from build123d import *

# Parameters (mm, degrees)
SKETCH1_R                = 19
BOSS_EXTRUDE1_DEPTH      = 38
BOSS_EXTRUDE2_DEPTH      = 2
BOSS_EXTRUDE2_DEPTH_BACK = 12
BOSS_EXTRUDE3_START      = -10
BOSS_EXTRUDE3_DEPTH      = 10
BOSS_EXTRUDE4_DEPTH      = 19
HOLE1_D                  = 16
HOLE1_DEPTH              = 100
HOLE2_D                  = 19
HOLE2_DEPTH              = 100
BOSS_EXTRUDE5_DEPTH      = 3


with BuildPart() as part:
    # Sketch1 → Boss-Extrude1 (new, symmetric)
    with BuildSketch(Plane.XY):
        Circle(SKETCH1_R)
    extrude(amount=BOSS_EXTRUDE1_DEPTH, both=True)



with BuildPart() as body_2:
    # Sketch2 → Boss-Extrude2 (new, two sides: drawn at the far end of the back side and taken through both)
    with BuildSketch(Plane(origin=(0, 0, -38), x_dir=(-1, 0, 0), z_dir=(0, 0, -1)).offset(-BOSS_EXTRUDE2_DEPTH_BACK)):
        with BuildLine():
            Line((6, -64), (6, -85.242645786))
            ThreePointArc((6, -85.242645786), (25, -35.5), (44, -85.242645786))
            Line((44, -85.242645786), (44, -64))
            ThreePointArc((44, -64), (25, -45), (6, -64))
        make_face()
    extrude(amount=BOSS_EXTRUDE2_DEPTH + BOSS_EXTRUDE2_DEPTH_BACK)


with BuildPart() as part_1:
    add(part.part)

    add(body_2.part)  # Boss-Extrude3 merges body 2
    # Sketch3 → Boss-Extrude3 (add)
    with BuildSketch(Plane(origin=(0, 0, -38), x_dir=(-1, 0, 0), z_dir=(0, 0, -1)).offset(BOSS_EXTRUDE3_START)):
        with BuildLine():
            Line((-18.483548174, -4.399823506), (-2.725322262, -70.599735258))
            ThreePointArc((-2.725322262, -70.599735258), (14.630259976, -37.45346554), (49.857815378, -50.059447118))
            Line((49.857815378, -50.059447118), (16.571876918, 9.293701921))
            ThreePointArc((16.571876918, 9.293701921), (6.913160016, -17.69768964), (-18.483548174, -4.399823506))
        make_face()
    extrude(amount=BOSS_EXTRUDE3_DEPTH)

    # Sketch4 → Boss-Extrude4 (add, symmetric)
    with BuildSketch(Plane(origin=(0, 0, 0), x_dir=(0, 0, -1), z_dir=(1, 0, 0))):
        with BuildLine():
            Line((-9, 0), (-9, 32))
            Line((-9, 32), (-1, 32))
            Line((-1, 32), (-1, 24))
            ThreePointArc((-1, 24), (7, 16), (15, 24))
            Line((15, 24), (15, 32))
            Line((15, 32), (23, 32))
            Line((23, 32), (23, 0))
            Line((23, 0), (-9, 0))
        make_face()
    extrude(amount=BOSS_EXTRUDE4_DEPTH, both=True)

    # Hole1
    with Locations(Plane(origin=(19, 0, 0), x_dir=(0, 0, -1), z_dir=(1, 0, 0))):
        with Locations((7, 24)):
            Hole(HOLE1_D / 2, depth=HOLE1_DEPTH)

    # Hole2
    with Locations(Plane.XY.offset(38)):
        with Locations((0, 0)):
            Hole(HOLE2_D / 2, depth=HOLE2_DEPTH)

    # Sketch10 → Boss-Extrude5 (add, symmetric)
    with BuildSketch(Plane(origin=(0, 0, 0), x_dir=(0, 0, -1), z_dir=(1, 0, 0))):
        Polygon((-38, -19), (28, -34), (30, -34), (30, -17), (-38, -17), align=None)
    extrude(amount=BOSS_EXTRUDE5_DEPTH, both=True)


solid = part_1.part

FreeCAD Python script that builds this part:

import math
import FreeCAD as App
import Part
import Sketcher
from FreeCAD import Vector
Q = App.Units.Quantity


def add_polygon(sketch, points):
    """Adds a closed chain of lines whose ends are joined by coincident constraints."""
    first, n = sketch.GeometryCount, len(points)
    for a, b in zip(points, points[1:] + points[:1]):
        sketch.addGeometry(Part.LineSegment(App.Vector(*a, 0), App.Vector(*b, 0)), False)
    for i in range(n):
        sketch.addConstraint(Sketcher.Constraint("Coincident", first + i, 2, first + (i + 1) % n, 1))

doc = App.newDocument("Part")
params = doc.addObject("Spreadsheet::Sheet", "Params")
for row, (alias, value) in enumerate([
    ("sketch1_diameter", "38 mm"),
    ("pad1_length", "76 mm"),
    ("sketch2_radius", "19 mm"),
    ("sketch2_radius2", "28.5 mm"),
    ("pad2_length", "2 mm"),
    ("pad2_length2", "12 mm"),
    ("sketch3_radius", "19 mm"),
    ("sketch3_radius2", "28.5 mm"),
    ("pad3_length", "10 mm"),
    ("sketch4_radius", "8 mm"),
    ("sketch4_width", "32 mm"),
    ("pad4_length", "38 mm"),
    ("sketch5_diameter", "16 mm"),
    ("hole_diameter", "16 mm"),
    ("hole_depth", "100 mm"),
    ("sketch6_diameter", "19 mm"),
    ("hole2_diameter", "19 mm"),
    ("hole2_depth", "100 mm"),
    ("sketch7_width", "17 mm"),
    ("sketch7_width2", "2 mm"),
    ("sketch7_height", "68 mm"),
    ("pad5_length", "6 mm"),
], start=1):
    params.set(f"A{row}", alias)
    params.set(f"B{row}", "=" + value)
    params.setAlias(f"B{row}", alias)

body = doc.addObject("PartDesign::Body", "Body")

# Sketch on XY plane
sketch1 = body.newObject("Sketcher::SketchObject", "Sketch")
sketch1.AttachmentSupport = (doc.getObject("XY_Plane"), [""])
sketch1.MapMode = "FlatFace"
sketch1.addGeometry(Part.Circle(Vector(0, 0, 0), Vector(0, 0, 1), 19), False)
sketch1.addConstraint(Sketcher.Constraint("Coincident", 0, 3, -1, 1))
sketch1.addConstraint(Sketcher.Constraint("Diameter", 0, Q("38 mm")))
sketch1.setExpression("Constraints[1]", "Params.sketch1_diameter")
pad1 = body.newObject("PartDesign::Pad", "Pad")
pad1.Profile = sketch1
pad1.setExpression("Length", "Params.pad1_length")
pad1.Midplane = True
body2 = doc.addObject("PartDesign::Body", "Body001")

# Sketch on XY plane
sketch2 = body2.newObject("Sketcher::SketchObject", "Sketch001")
sketch2.AttachmentSupport = (doc.getObject("XY_Plane001"), [""])
sketch2.MapMode = "FlatFace"
sketch2.AttachmentOffset = App.Placement(Vector(0, 0, -38), App.Rotation())
sketch2.addGeometry(Part.LineSegment(Vector(-6, -85, 0), Vector(-6, -64, 0)), False)
sketch2.addGeometry(Part.ArcOfCircle(Part.Circle(Vector(-25, -64, 0), Vector(0, 0, 1), 19), math.radians(0), math.radians(180)), False)
sketch2.addGeometry(Part.LineSegment(Vector(-44, -64, 0), Vector(-44, -85, 0)), False)
sketch2.addGeometry(Part.ArcOfCircle(Part.Circle(Vector(-25, -64, 0), Vector(0, 0, 1), 28), math.radians(-48), math.radians(228)), False)
sketch2.addConstraint(Sketcher.Constraint("Tangent", 0, 2, 1, 1))
sketch2.addConstraint(Sketcher.Constraint("Tangent", 1, 2, 2, 1))
sketch2.addConstraint(Sketcher.Constraint("Coincident", 2, 2, 3, 2))
sketch2.addConstraint(Sketcher.Constraint("Coincident", 3, 1, 0, 1))
sketch2.addConstraint(Sketcher.Constraint("Vertical", 0))
sketch2.addConstraint(Sketcher.Constraint("Vertical", 2))
sketch2.addConstraint(Sketcher.Constraint("Coincident", 3, 3, 1, 3))
sketch2.addConstraint(Sketcher.Constraint("Radius", 1, Q("19 mm")))
sketch2.addConstraint(Sketcher.Constraint("Radius", 3, Q("28.5 mm")))
sketch2.addConstraint(Sketcher.Constraint("DistanceX", 1, 3, -1, 1, Q("25 mm")))
sketch2.addConstraint(Sketcher.Constraint("DistanceY", 1, 3, -1, 1, Q("64 mm")))
sketch2.setExpression("Constraints[7]", "Params.sketch2_radius")
sketch2.setExpression("Constraints[8]", "Params.sketch2_radius2")
pad2 = body2.newObject("PartDesign::Pad", "Pad001")
pad2.Profile = sketch2
pad2.Type = "TwoLengths"
pad2.setExpression("Length", "Params.pad2_length")
pad2.setExpression("Length2", "Params.pad2_length2")
pad2.Reversed = True
body.AllowCompound = True
doc.recompute()

boolean = body.newObject("PartDesign::Boolean", "Boolean")
boolean.Type = "Fuse"
boolean.addObjects([body2])

# Sketch on XY plane
sketch3 = body.newObject("Sketcher::SketchObject", "Sketch002")
sketch3.AttachmentSupport = (doc.getObject("XY_Plane"), [""])
sketch3.MapMode = "FlatFace"
sketch3.AttachmentOffset = App.Placement(Vector(0, 0, -28), App.Rotation())
sketch3.addGeometry(Part.LineSegment(Vector(18, -4, 0), Vector(3, -71, 0)), False)
sketch3.addGeometry(Part.ArcOfCircle(Part.Circle(Vector(-25, -64, 0), Vector(0, 0, 1), 28), math.radians(-13), math.radians(151)), False)
sketch3.addGeometry(Part.LineSegment(Vector(-50, -50, 0), Vector(-17, 9, 0)), False)
sketch3.addGeometry(Part.ArcOfCircle(Part.Circle(Vector(0, 0, 0), Vector(0, 0, 1), 19), math.radians(151), math.radians(347)), False)
sketch3.addConstraint(Sketcher.Constraint("Tangent", 0, 2, 1, 1))
sketch3.addConstraint(Sketcher.Constraint("Tangent", 1, 2, 2, 1))
sketch3.addConstraint(Sketcher.Constraint("Tangent", 2, 2, 3, 1))
sketch3.addConstraint(Sketcher.Constraint("Tangent", 3, 2, 0, 1))
sketch3.addConstraint(Sketcher.Constraint("Coincident", 3, 3, -1, 1))
sketch3.addConstraint(Sketcher.Constraint("Radius", 3, Q("19 mm")))
sketch3.addConstraint(Sketcher.Constraint("Radius", 1, Q("28.5 mm")))
sketch3.addConstraint(Sketcher.Constraint("DistanceX", 1, 3, -1, 1, Q("25 mm")))
sketch3.addConstraint(Sketcher.Constraint("DistanceY", 1, 3, -1, 1, Q("64 mm")))
sketch3.setExpression("Constraints[5]", "Params.sketch3_radius")
sketch3.setExpression("Constraints[6]", "Params.sketch3_radius2")
pad3 = body.newObject("PartDesign::Pad", "Pad002")
pad3.Profile = sketch3
pad3.setExpression("Length", "Params.pad3_length")
pad3.Reversed = True

# Sketch on YZ plane
sketch4 = body.newObject("Sketcher::SketchObject", "Sketch003")
sketch4.AttachmentSupport = (doc.getObject("YZ_Plane"), [""])
sketch4.MapMode = "FlatFace"
sketch4.addGeometry(Part.LineSegment(Vector(32, 9, 0), Vector(0, 9, 0)), False)
sketch4.addGeometry(Part.LineSegment(Vector(0, 9, 0), Vector(0, -23, 0)), False)
sketch4.addGeometry(Part.LineSegment(Vector(0, -23, 0), Vector(32, -23, 0)), False)
sketch4.addGeometry(Part.LineSegment(Vector(32, -23, 0), Vector(32, -15, 0)), False)
sketch4.addGeometry(Part.LineSegment(Vector(32, -15, 0), Vector(24, -15, 0)), False)
sketch4.addGeometry(Part.ArcOfCircle(Part.Circle(Vector(24, -7, 0), Vector(0, 0, 1), 8), math.radians(90), math.radians(270)), False)
sketch4.addGeometry(Part.LineSegment(Vector(24, 1, 0), Vector(32, 1, 0)), False)
sketch4.addGeometry(Part.LineSegment(Vector(32, 1, 0), Vector(32, 9, 0)), False)
sketch4.addConstraint(Sketcher.Constraint("Coincident", 0, 2, 1, 1))
sketch4.addConstraint(Sketcher.Constraint("Coincident", 1, 2, 2, 1))
sketch4.addConstraint(Sketcher.Constraint("Coincident", 2, 2, 3, 1))
sketch4.addConstraint(Sketcher.Constraint("Coincident", 3, 2, 4, 1))
sketch4.addConstraint(Sketcher.Constraint("Tangent", 4, 2, 5, 2))
sketch4.addConstraint(Sketcher.Constraint("Tangent", 5, 1, 6, 1))
sketch4.addConstraint(Sketcher.Constraint("Coincident", 6, 2, 7, 1))
sketch4.addConstraint(Sketcher.Constraint("Coincident", 7, 2, 0, 1))
sketch4.addConstraint(Sketcher.Constraint("Horizontal", 0))
sketch4.addConstraint(Sketcher.Constraint("Vertical", 1))
sketch4.addConstraint(Sketcher.Constraint("Horizontal", 2))
sketch4.addConstraint(Sketcher.Constraint("Vertical", 3))
sketch4.addConstraint(Sketcher.Constraint("Horizontal", 4))
sketch4.addConstraint(Sketcher.Constraint("Horizontal", 6))
sketch4.addConstraint(Sketcher.Constraint("Vertical", 7))
sketch4.addConstraint(Sketcher.Constraint("PointOnObject", 0, 2, -2))
sketch4.addConstraint(Sketcher.Constraint("Vertical", 3, 2, 6, 2))
sketch4.addConstraint(Sketcher.Constraint("Equal", 2, 1))
sketch4.addConstraint(Sketcher.Constraint("Equal", 6, 3))
sketch4.addConstraint(Sketcher.Constraint("Equal", 3, 7))
sketch4.addConstraint(Sketcher.Constraint("Radius", 5, Q("8 mm")))
sketch4.addConstraint(Sketcher.Constraint("DistanceX", 0, 2, 0, 1, Q("32 mm")))
sketch4.addConstraint(Sketcher.Constraint("DistanceY", 5, 3, -1, 1, Q("7 mm")))
sketch4.setExpression("Constraints[20]", "Params.sketch4_radius")
sketch4.setExpression("Constraints[21]", "Params.sketch4_width")
pad4 = body.newObject("PartDesign::Pad", "Pad003")
pad4.Profile = sketch4
pad4.setExpression("Length", "Params.pad4_length")
pad4.Midplane = True

# Sketch on YZ plane
sketch5 = body.newObject("Sketcher::SketchObject", "Sketch004")
sketch5.AttachmentSupport = (doc.getObject("YZ_Plane"), [""])
sketch5.MapMode = "FlatFace"
sketch5.AttachmentOffset = App.Placement(Vector(0, 0, 19), App.Rotation())
sketch5.addGeometry(Part.Circle(Vector(24, -7, 0), Vector(0, 0, 1), 8), False)
sketch5.addConstraint(Sketcher.Constraint("Diameter", 0, Q("16 mm")))
sketch5.addConstraint(Sketcher.Constraint("DistanceX", -1, 1, 0, 3, Q("24 mm")))
sketch5.addConstraint(Sketcher.Constraint("DistanceY", 0, 3, -1, 1, Q("7 mm")))
sketch5.setExpression("Constraints[0]", "Params.sketch5_diameter")
doc.recompute()
hole = body.newObject("PartDesign::Hole", "Hole")
hole.Profile = sketch5
hole.ThreadType = "None"
hole.setExpression("Diameter", "Params.hole_diameter")
hole.DepthType = "Dimension"
hole.setExpression("Depth", "Params.hole_depth")
hole.DrillPoint = "Flat"

# Sketch on XY plane
sketch6 = body.newObject("Sketcher::SketchObject", "Sketch005")
sketch6.AttachmentSupport = (doc.getObject("XY_Plane"), [""])
sketch6.MapMode = "FlatFace"
sketch6.AttachmentOffset = App.Placement(Vector(0, 0, 38), App.Rotation())
sketch6.addGeometry(Part.Circle(Vector(0, 0, 0), Vector(0, 0, 1), 10), False)
sketch6.addConstraint(Sketcher.Constraint("Coincident", 0, 3, -1, 1))
sketch6.addConstraint(Sketcher.Constraint("Diameter", 0, Q("19 mm")))
sketch6.setExpression("Constraints[1]", "Params.sketch6_diameter")
doc.recompute()
hole2 = body.newObject("PartDesign::Hole", "Hole001")
hole2.Profile = sketch6
hole2.ThreadType = "None"
hole2.setExpression("Diameter", "Params.hole2_diameter")
hole2.DepthType = "Dimension"
hole2.setExpression("Depth", "Params.hole2_depth")
hole2.DrillPoint = "Flat"

# Sketch on YZ plane
sketch7 = body.newObject("Sketcher::SketchObject", "Sketch006")
sketch7.AttachmentSupport = (doc.getObject("YZ_Plane"), [""])
sketch7.MapMode = "FlatFace"
add_polygon(sketch7, [(-19, 38), (-34, -28), (-34, -30), (-17, -30), (-17, 38)])  # lines 0-4
sketch7.addConstraint(Sketcher.Constraint("Vertical", 1))
sketch7.addConstraint(Sketcher.Constraint("Horizontal", 2))
sketch7.addConstraint(Sketcher.Constraint("Vertical", 3))
sketch7.addConstraint(Sketcher.Constraint("Horizontal", 4))
sketch7.addConstraint(Sketcher.Constraint("Equal", 4, 1))
sketch7.addConstraint(Sketcher.Constraint("DistanceX", 2, 1, 2, 2, Q("17 mm")))
sketch7.addConstraint(Sketcher.Constraint("DistanceX", 4, 2, 4, 1, Q("2 mm")))
sketch7.addConstraint(Sketcher.Constraint("DistanceY", 3, 1, 3, 2, Q("68 mm")))
sketch7.addConstraint(Sketcher.Constraint("DistanceX", 0, 2, -1, 1, Q("34 mm")))
sketch7.addConstraint(Sketcher.Constraint("DistanceY", 0, 2, -1, 1, Q("28 mm")))
sketch7.setExpression("Constraints[10]", "Params.sketch7_width")
sketch7.setExpression("Constraints[11]", "Params.sketch7_width2")
sketch7.setExpression("Constraints[12]", "Params.sketch7_height")
pad5 = body.newObject("PartDesign::Pad", "Pad004")
pad5.Profile = sketch7
pad5.setExpression("Length", "Params.pad5_length")
pad5.Midplane = True

doc.recompute()
